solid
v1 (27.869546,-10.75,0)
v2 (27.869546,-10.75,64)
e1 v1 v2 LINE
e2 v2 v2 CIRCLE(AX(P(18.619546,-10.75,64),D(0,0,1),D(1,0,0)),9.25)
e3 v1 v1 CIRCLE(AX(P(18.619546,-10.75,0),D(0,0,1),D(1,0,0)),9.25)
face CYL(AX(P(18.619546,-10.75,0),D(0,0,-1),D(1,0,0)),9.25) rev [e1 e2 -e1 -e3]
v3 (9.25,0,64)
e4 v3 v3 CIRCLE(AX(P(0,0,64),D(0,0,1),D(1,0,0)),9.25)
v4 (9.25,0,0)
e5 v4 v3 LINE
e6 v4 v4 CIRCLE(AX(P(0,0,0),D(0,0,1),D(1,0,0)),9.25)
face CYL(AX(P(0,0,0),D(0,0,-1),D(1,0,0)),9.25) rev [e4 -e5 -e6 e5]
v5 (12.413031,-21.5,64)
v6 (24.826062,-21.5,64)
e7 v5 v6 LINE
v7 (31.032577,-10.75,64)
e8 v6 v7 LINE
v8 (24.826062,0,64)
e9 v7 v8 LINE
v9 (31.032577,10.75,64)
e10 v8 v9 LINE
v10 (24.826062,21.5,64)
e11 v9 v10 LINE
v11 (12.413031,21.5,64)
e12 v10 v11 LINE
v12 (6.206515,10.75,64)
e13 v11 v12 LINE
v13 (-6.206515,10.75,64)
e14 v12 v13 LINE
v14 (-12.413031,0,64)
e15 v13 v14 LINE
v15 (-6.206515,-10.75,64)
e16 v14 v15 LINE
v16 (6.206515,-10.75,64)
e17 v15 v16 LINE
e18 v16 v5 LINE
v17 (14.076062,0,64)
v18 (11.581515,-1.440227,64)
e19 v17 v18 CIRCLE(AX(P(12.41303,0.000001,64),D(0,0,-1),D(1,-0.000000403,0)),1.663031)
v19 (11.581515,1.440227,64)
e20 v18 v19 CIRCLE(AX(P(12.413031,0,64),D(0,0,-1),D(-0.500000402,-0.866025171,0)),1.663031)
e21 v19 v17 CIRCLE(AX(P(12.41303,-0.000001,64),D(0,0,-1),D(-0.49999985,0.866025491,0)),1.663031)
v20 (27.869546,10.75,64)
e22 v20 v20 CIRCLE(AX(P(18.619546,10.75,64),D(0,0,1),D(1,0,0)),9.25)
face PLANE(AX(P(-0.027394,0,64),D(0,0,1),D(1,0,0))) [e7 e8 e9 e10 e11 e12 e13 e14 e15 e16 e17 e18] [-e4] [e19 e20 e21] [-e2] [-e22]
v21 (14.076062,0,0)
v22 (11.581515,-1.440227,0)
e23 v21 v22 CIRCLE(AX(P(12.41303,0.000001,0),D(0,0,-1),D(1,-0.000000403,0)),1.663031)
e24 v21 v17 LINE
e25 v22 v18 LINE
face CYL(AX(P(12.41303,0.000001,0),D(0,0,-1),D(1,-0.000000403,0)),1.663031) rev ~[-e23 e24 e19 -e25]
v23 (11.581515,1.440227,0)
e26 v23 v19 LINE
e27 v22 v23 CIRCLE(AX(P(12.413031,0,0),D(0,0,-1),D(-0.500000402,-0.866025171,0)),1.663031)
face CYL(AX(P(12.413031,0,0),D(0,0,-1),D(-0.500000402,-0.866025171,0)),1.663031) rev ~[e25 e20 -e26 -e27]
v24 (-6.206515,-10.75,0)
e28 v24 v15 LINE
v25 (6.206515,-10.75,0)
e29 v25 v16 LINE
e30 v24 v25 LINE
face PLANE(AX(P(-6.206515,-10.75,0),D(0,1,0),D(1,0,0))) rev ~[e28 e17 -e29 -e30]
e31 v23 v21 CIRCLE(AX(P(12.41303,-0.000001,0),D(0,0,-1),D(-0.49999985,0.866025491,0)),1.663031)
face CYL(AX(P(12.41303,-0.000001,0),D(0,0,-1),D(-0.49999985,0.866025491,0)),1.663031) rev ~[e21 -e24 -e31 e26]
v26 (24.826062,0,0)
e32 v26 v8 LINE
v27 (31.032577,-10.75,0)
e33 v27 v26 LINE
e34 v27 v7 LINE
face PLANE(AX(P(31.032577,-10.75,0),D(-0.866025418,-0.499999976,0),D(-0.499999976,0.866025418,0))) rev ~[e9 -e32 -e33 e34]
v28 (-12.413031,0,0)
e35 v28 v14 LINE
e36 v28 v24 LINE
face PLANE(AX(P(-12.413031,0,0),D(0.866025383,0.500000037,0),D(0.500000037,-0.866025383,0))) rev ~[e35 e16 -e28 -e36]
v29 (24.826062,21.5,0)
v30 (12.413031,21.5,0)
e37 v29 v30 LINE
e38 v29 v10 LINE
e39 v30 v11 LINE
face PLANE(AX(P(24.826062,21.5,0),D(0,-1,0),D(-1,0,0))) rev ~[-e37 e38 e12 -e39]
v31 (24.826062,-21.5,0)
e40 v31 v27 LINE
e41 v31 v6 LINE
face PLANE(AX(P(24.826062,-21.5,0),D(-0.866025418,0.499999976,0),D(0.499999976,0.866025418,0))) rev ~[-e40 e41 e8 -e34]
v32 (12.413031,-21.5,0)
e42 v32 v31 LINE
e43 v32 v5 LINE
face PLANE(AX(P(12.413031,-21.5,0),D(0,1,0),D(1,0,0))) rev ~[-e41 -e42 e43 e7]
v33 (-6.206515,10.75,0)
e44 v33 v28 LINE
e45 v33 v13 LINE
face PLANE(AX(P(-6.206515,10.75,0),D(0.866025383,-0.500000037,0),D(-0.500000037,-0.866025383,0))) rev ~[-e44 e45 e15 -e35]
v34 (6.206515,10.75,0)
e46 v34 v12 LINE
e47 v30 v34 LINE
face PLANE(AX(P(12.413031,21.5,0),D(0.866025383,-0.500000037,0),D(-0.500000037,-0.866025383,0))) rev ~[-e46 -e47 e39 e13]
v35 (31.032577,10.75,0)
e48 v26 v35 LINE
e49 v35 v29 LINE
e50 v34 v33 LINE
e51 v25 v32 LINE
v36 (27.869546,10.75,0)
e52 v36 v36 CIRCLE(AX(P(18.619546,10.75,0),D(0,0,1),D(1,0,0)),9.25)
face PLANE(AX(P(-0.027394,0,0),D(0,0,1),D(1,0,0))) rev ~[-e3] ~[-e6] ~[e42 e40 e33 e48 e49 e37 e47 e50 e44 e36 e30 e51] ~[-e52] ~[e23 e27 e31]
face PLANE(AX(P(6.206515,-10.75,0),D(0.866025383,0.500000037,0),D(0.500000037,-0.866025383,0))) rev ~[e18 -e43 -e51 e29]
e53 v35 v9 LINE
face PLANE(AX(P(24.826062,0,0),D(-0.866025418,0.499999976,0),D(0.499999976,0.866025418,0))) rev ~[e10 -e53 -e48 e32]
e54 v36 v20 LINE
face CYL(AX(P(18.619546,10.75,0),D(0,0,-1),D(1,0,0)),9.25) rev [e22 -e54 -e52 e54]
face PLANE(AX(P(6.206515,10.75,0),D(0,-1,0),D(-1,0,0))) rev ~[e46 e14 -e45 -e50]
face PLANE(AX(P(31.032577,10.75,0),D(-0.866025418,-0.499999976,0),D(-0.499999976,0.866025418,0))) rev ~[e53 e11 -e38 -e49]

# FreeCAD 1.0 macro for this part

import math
import FreeCAD as App
import Part
import Sketcher

V = App.Vector
Q = App.Units.Quantity


def add_polygon(sketch, points):
    """Adds a closed chain of lines whose ends are joined by coincident constraints."""
    first, n = sketch.GeometryCount, len(points)
    for a, b in zip(points, points[1:] + points[:1]):
        sketch.addGeometry(Part.LineSegment(App.Vector(*a, 0), App.Vector(*b, 0)), False)
    for i in range(n):
        sketch.addConstraint(Sketcher.Constraint("Coincident", first + i, 2, first + (i + 1) % n, 1))

doc = App.newDocument("Part")
params = doc.addObject("Spreadsheet::Sheet", "Params")
for row, (alias, value) in enumerate([
    ("sketch1_diameter", "18.5 mm"),
    ("pad1_length", "64 mm"),
], start=1):
    params.set(f"A{row}", alias)
    params.set(f"B{row}", "=" + value)
    params.setAlias(f"B{row}", alias)

body = doc.addObject("PartDesign::Body", "Body")

# Sketch on XY plane
sketch1 = doc.addObject("Sketcher::SketchObject", "Sketch")
body.addObject(sketch1)
sketch1.AttachmentSupport = (doc.XY_Plane, [""])
sketch1.MapMode = "FlatFace"
add_polygon(sketch1, [(6.206515, 10.75), (-6.206515, 10.75), (-12.413031, 0), (-6.206515, -10.75), (6.206515, -10.75), (12.413031, -21.5), (24.826062, -21.5), (31.032577, -10.75), (24.826062, 0), (31.032577, 10.75), (24.826062, 21.5), (12.413031, 21.5)])  # lines 0-11
sketch1.addGeometry(Part.Circle(V(18.619546, -10.75, 0), V(0, 0, 1), 9.25), False)  # 12
sketch1.addGeometry(Part.Circle(V(0, 0, 0), V(0, 0, 1), 9.25), False)  # 13
sketch1.addGeometry(Part.ArcOfCircle(Part.Circle(V(12.413031, 0, 0), V(0, 0, 1), 1.663031), math.radians(120.000027), math.radians(239.999973)), False)  # 14
sketch1.addGeometry(Part.ArcOfCircle(Part.Circle(V(12.41303, -0.000001, 0), V(0, 0, 1), 1.663031), math.radians(0.000023), math.radians(119.99999)), False)  # 15
sketch1.addGeometry(Part.ArcOfCircle(Part.Circle(V(12.41303, 0.000001, 0), V(0, 0, 1), 1.663031), math.radians(-119.99999), math.radians(-0.000023)), False)  # 16
sketch1.addGeometry(Part.Circle(V(18.619546, 10.75, 0), V(0, 0, 1), 9.25), False)  # 17
sketch1.addConstraint([
    Sketcher.Constraint("Tangent", 14, 1, 15, 2),
    Sketcher.Constraint("Tangent", 15, 1, 16, 2),
    Sketcher.Constraint("Tangent", 16, 1, 14, 2),
    Sketcher.Constraint("Horizontal", 0),
    Sketcher.Constraint("Horizontal", 3),
    Sketcher.Constraint("Horizontal", 5),
    Sketcher.Constraint("Horizontal", 10),
    Sketcher.Constraint("Coincident", 13, 3, -1, 1),
    Sketcher.Constraint("Equal", 12, 13),
    Sketcher.Constraint("Equal", 13, 17),
    Sketcher.Constraint("Symmetric", 0, 2, 3, 2, -1, 1),
    Sketcher.Constraint("Symmetric", 12, 3, 17, 3, -1),
    Sketcher.Constraint("Symmetric", 6, 2, 8, 2, -1),
    Sketcher.Constraint("Symmetric", 5, 2, 9, 2, -1),
    Sketcher.Constraint("Symmetric", 14, 1, 16, 1, -1),
    Sketcher.Constraint("PointOnObject", 1, 2, -1),
    Sketcher.Constraint("PointOnObject", 7, 2, -1),
    Sketcher.Constraint("PointOnObject", 15, 1, -1),
    Sketcher.Constraint("Parallel", 2, 4),
    Sketcher.Constraint("Parallel", 1, 6),
    Sketcher.Constraint("Parallel", 4, 7),
    Sketcher.Constraint("Parallel", 6, 8),
    Sketcher.Constraint("Parallel", 8, 11),
    Sketcher.Constraint("Horizontal", 17, 3, 0, 2),
    Sketcher.Constraint("Horizontal", 3, 2, 6, 2),
    Sketcher.Constraint("Vertical", 16, 3, 4, 2),
    Sketcher.Constraint("Vertical", 5, 2, 7, 2),
    Sketcher.Constraint("Vertical", 4, 2, 10, 2),
    Sketcher.Constraint("Equal", 3, 5),
    Sketcher.Constraint("Diameter", 12, Q("18.5 mm")),
    Sketcher.Constraint("Angle", 1, Q("-120.000002 deg")),
    Sketcher.Constraint("DistanceY", 4, 2, -1, 1, Q("21.5 mm")),
    Sketcher.Constraint("Radius", 14, Q("1.663031 mm")),
    Sketcher.Constraint("DistanceX", 15, 1, 7, 2, Q("10.75 mm")),
    Sketcher.Constraint("DistanceX", 11, 2, 14, 1, Q("5.375 mm")),
    Sketcher.Constraint("DistanceX", 0, 2, 17, 3, Q("24.826061 mm")),
])
sketch1.setExpression("Constraints[41]", "Params.sketch1_diameter")
pad1 = doc.addObject("PartDesign::Pad", "Pad")
body.addObject(pad1)
pad1.Profile = sketch1
pad1.setExpression("Length", "Params.pad1_length")

doc.recompute()
